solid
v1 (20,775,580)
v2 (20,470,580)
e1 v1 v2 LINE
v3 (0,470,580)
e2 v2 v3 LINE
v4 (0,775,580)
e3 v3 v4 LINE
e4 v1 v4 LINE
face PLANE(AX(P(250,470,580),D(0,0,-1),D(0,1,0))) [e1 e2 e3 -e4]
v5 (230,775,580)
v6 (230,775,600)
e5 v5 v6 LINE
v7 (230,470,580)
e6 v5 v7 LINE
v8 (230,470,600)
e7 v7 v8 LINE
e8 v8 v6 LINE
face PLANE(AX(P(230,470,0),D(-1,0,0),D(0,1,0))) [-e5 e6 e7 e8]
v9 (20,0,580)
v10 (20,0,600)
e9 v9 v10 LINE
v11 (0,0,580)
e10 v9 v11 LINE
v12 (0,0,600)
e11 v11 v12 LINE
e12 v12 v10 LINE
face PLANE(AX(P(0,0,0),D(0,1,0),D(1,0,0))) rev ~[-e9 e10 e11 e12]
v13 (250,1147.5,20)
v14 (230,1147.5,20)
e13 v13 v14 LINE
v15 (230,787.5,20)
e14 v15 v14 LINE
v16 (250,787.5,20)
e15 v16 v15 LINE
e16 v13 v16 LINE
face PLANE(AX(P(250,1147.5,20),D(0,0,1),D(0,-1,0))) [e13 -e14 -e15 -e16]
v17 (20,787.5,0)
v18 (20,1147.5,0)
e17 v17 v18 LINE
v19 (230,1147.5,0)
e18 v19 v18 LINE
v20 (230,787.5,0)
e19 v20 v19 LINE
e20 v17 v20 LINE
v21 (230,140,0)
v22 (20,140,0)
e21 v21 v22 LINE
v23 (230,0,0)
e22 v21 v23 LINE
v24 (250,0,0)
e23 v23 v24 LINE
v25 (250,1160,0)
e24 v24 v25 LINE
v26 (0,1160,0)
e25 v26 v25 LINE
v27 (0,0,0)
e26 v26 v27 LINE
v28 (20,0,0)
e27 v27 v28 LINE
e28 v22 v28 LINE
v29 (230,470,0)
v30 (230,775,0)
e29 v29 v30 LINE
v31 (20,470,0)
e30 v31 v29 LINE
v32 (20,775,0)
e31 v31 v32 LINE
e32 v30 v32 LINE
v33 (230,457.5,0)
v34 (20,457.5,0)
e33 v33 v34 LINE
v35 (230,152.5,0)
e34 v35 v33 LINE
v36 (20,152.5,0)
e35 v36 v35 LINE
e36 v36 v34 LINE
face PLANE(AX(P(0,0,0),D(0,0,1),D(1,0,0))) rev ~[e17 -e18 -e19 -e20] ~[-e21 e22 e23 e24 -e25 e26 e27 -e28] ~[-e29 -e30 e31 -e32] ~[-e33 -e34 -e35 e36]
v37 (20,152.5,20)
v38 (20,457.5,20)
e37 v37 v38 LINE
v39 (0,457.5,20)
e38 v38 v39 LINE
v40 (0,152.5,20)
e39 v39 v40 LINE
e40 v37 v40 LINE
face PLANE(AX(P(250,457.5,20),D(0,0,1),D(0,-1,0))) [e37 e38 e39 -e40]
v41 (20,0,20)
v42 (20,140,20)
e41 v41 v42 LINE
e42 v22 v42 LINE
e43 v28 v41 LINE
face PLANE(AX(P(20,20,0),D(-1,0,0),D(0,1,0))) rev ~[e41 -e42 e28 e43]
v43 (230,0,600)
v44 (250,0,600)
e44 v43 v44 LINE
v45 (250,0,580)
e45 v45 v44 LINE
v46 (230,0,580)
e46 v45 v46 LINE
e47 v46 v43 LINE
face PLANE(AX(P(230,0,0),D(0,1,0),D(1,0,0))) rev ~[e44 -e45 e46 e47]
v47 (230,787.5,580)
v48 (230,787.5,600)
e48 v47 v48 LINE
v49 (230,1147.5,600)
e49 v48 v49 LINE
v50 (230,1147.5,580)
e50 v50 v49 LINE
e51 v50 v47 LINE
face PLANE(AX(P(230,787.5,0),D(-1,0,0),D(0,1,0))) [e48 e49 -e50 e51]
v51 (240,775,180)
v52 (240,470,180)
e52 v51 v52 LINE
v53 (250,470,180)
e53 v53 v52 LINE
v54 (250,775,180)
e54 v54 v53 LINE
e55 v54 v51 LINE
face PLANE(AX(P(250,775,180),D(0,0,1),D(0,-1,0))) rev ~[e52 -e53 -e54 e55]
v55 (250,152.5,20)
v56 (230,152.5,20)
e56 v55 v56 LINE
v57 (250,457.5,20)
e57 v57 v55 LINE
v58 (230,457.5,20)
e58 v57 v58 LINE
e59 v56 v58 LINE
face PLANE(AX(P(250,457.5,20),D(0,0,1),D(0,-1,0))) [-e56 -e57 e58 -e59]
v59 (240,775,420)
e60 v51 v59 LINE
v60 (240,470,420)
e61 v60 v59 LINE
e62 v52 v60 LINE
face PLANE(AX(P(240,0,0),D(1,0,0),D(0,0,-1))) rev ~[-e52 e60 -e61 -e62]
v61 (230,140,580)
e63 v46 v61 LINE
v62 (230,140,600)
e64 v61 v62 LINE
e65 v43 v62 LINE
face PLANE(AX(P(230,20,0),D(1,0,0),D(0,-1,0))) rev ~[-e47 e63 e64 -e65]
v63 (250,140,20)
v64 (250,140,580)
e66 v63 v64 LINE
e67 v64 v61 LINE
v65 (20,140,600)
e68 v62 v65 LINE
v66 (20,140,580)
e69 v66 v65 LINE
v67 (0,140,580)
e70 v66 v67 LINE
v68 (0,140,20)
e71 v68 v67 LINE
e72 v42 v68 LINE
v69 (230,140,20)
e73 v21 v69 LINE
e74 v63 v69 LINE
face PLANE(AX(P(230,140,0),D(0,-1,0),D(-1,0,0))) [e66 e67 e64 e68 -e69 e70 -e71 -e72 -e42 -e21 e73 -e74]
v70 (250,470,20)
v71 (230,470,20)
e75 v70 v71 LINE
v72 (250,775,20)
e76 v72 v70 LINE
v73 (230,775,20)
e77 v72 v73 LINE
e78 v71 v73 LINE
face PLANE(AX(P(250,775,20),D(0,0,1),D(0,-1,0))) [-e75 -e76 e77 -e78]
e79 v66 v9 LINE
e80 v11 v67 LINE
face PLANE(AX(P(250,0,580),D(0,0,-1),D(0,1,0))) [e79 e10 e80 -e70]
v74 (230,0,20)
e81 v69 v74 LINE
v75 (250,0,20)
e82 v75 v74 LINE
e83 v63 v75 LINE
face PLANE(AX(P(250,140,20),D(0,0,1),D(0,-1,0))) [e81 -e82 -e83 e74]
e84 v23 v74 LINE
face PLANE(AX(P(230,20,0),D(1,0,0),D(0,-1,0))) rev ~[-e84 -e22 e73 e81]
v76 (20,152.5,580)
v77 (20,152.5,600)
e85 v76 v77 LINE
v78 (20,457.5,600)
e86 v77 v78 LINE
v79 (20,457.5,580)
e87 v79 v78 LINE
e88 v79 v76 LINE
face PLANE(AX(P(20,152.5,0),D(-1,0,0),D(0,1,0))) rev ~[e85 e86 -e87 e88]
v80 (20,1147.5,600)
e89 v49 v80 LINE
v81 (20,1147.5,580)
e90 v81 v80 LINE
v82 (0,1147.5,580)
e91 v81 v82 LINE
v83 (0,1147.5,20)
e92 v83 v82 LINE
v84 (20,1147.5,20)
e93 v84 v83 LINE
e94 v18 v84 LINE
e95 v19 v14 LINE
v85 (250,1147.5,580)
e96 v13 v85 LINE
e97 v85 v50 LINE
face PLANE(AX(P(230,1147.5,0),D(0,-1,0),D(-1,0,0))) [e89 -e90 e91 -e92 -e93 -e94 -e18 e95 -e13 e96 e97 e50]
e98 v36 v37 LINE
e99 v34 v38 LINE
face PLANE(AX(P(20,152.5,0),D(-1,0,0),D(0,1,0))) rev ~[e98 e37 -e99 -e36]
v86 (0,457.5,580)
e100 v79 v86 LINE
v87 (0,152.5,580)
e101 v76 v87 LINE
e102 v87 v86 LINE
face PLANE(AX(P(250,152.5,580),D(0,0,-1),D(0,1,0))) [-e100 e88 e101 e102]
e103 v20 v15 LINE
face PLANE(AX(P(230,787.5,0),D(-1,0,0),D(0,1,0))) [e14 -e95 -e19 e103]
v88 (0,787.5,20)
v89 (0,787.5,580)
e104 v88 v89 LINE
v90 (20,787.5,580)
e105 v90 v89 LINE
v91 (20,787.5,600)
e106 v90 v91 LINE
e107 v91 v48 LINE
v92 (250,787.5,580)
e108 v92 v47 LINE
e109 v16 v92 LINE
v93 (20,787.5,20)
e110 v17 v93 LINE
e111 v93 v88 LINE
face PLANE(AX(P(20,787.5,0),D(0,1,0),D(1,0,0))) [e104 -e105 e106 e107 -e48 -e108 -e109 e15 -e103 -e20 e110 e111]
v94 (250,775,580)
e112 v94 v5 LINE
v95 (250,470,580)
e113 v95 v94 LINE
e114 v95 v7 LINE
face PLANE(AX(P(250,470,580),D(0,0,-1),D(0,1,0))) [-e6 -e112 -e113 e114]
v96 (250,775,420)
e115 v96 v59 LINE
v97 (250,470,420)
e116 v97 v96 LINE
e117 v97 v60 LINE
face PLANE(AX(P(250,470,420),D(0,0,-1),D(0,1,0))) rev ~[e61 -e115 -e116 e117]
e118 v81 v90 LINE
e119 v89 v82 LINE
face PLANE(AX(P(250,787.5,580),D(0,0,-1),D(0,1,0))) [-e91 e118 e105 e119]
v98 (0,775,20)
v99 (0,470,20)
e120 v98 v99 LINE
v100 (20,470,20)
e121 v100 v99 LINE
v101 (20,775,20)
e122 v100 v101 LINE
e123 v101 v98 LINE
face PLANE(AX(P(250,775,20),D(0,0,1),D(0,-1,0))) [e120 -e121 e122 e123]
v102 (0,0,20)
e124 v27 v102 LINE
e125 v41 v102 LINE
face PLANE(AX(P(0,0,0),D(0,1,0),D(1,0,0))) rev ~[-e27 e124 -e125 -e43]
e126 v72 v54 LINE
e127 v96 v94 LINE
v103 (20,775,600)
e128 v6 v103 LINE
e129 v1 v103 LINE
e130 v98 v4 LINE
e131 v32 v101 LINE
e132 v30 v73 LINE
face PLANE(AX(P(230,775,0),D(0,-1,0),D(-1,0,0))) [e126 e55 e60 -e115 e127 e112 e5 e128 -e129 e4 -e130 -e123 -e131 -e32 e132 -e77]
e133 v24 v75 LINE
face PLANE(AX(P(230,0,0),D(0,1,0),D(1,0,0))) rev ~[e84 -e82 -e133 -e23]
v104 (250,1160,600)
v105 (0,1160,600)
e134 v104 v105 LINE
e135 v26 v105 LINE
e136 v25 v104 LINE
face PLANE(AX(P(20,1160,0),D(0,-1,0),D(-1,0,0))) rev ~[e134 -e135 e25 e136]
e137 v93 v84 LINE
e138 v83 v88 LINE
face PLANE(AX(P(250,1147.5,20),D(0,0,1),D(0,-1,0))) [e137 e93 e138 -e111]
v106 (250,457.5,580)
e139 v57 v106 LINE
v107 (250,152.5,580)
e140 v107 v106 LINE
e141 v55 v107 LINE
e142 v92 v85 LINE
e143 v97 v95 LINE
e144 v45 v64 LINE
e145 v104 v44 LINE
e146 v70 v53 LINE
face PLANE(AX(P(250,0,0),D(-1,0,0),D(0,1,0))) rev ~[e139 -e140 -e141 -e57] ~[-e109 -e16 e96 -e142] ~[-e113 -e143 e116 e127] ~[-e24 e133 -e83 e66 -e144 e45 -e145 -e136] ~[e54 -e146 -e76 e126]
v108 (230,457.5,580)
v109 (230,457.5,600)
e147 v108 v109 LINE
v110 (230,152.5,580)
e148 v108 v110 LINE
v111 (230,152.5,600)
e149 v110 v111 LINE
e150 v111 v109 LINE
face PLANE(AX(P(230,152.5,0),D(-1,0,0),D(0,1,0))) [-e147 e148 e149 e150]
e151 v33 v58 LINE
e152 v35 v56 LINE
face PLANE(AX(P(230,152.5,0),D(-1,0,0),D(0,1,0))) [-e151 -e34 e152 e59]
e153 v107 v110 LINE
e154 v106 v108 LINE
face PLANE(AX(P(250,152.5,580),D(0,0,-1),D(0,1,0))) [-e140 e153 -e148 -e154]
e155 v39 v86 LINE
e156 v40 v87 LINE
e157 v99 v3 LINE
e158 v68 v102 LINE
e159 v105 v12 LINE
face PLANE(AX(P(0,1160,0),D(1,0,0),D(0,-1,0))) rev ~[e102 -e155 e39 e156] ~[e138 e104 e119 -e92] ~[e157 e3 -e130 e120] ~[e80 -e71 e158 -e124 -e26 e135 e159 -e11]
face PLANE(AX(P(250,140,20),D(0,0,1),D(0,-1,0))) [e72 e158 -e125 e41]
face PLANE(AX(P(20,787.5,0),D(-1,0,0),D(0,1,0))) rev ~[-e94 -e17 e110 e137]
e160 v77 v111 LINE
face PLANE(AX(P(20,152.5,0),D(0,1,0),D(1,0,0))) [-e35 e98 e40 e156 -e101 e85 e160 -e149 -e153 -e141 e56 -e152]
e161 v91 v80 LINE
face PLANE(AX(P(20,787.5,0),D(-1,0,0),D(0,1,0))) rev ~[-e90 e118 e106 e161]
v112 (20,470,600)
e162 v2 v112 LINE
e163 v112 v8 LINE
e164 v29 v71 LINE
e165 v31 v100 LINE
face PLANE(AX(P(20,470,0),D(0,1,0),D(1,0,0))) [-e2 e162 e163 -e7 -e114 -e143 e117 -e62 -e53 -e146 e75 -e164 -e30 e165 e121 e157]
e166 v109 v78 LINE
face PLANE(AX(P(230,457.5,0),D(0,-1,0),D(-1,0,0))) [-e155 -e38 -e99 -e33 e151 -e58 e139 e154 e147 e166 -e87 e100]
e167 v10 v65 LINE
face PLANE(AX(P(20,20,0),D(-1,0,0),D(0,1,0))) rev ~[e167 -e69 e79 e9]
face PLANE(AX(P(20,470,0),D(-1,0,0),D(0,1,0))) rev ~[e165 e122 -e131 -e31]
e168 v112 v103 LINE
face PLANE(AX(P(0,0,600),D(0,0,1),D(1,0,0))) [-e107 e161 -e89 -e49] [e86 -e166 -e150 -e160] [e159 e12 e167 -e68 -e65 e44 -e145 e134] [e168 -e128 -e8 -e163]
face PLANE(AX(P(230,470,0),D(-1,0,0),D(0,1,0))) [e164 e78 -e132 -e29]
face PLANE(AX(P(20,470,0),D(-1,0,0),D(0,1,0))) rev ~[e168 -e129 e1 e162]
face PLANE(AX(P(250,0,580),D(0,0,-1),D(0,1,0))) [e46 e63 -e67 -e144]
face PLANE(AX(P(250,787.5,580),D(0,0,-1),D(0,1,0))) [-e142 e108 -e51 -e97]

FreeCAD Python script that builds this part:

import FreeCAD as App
import Part
import Sketcher


def add_polygon(sketch, points):
    """Adds a closed chain of lines whose ends are joined by coincident constraints."""
    first, n = sketch.GeometryCount, len(points)
    for a, b in zip(points, points[1:] + points[:1]):
        sketch.addGeometry(Part.LineSegment(App.Vector(*a, 0), App.Vector(*b, 0)), False)
    for i in range(n):
        sketch.addConstraint(Sketcher.Constraint("Coincident", first + i, 2, first + (i + 1) % n, 1))

doc = App.newDocument("Part")
body = doc.addObject("PartDesign::Body", "Body")

# Sketch on XY plane
sketch1 = body.newObject("Sketcher::SketchObject", "Sketch")
sketch1.AttachmentSupport = (doc.getObject("XY_Plane"), [""])
sketch1.MapMode = "FlatFace"
add_polygon(sketch1, [(230, 0), (250, 0), (250, 1160), (0, 1160), (0, 0), (20, 0), (20, 140), (230, 140)])  # lines 0-7
add_polygon(sketch1, [(20, 1148), (230, 1148), (230, 788), (20, 788)])  # lines 8-11
add_polygon(sketch1, [(20, 470), (20, 775), (230, 775), (230, 470)])  # lines 12-15
add_polygon(sketch1, [(20, 152), (20, 458), (230, 458), (230, 152)])  # lines 16-19
sketch1.addConstraint([
    Sketcher.Constraint("Horizontal", 0),
    Sketcher.Constraint("Vertical", 1),
    Sketcher.Constraint("Horizontal", 2),
    Sketcher.Constraint("Vertical", 3),
    Sketcher.Constraint("Horizontal", 4),
    Sketcher.Constraint("Vertical", 5),
    Sketcher.Constraint("Horizontal", 6),
    Sketcher.Constraint("Vertical", 7),
    Sketcher.Constraint("Horizontal", 8),
    Sketcher.Constraint("Vertical", 9),
    Sketcher.Constraint("Horizontal", 10),
    Sketcher.Constraint("Vertical", 11),
    Sketcher.Constraint("Vertical", 12),
    Sketcher.Constraint("Horizontal", 13),
    Sketcher.Constraint("Vertical", 14),
    Sketcher.Constraint("Horizontal", 15),
    Sketcher.Constraint("Vertical", 16),
    Sketcher.Constraint("Horizontal", 17),
    Sketcher.Constraint("Vertical", 18),
    Sketcher.Constraint("Horizontal", 19),
    Sketcher.Constraint("Coincident", 3, 2, -1, 1),
    Sketcher.Constraint("PointOnObject", 0, 2, -1),
    Sketcher.Constraint("Vertical", 7, 2, 8, 2),
    Sketcher.Constraint("Vertical", 5, 2, 10, 2),
    Sketcher.Constraint("Vertical", 11, 2, 12, 2),
    Sketcher.Constraint("Vertical", 9, 2, 13, 2),
    Sketcher.Constraint("Vertical", 15, 2, 16, 2),
    Sketcher.Constraint("Vertical", 14, 2, 17, 2),
    Sketcher.Constraint("Equal", 0, 4),
    Sketcher.Constraint("Equal", 14, 16),
    Sketcher.Constraint("DistanceX", 0, 1, 0, 2, 20.0),
    Sketcher.Constraint("DistanceX", 2, 2, 2, 1, 250.0),
    Sketcher.Constraint("DistanceY", 1, 1, 1, 2, 1160.0),
    Sketcher.Constraint("DistanceY", 5, 1, 5, 2, 140.0),
    Sketcher.Constraint("DistanceY", 9, 2, 9, 1, 360.0),
    Sketcher.Constraint("DistanceY", 12, 1, 12, 2, 305.0),
    Sketcher.Constraint("DistanceY", 8, 2, 1, 2, 12.5),
    Sketcher.Constraint("DistanceY", 12, 2, 10, 2, 12.5),
    Sketcher.Constraint("DistanceY", 16, 2, 15, 2, 12.5),
])
pad1 = body.newObject("PartDesign::Pad", "Pad")
pad1.Profile = sketch1
pad1.Length = 600

# Sketch on YZ plane
sketch2 = body.newObject("Sketcher::SketchObject", "Sketch001")
sketch2.AttachmentSupport = (doc.getObject("YZ_Plane"), [""])
sketch2.MapMode = "FlatFace"
sketch2.AttachmentOffset = App.Placement(App.Vector(0, 0, 250), App.Rotation())
add_polygon(sketch2, [(152, 20), (458, 20), (458, 580), (152, 580)])  # lines 0-3
add_polygon(sketch2, [(470, 580), (470, 20), (775, 20), (775, 580)])  # lines 4-7
add_polygon(sketch2, [(0, 20), (140, 20), (140, 580), (0, 580)])  # lines 8-11
add_polygon(sketch2, [(788, 580), (788, 20), (1148, 20), (1148, 580)])  # lines 12-15
sketch2.addConstraint([
    Sketcher.Constraint("Horizontal", 0),
    Sketcher.Constraint("Vertical", 1),
    Sketcher.Constraint("Horizontal", 2),
    Sketcher.Constraint("Vertical", 3),
    Sketcher.Constraint("Vertical", 4),
    Sketcher.Constraint("Horizontal", 5),
    Sketcher.Constraint("Vertical", 6),
    Sketcher.Constraint("Horizontal", 7),
    Sketcher.Constraint("Horizontal", 8),
    Sketcher.Constraint("Vertical", 9),
    Sketcher.Constraint("Horizontal", 10),
    Sketcher.Constraint("Vertical", 11),
    Sketcher.Constraint("Vertical", 12),
    Sketcher.Constraint("Horizontal", 13),
    Sketcher.Constraint("Vertical", 14),
    Sketcher.Constraint("Horizontal", 15),
    Sketcher.Constraint("PointOnObject", 10, 2, -2),
    Sketcher.Constraint("Horizontal", 3, 2, 4, 2),
    Sketcher.Constraint("Horizontal", 2, 2, 6, 2),
    Sketcher.Constraint("Horizontal", 5, 2, 8, 2),
    Sketcher.Constraint("Horizontal", 7, 2, 9, 2),
    Sketcher.Constraint("Horizontal", 11, 2, 12, 2),
    Sketcher.Constraint("Horizontal", 10, 2, 14, 2),
    Sketcher.Constraint("Equal", 2, 5),
    Sketcher.Constraint("DistanceY", -1, 1, 0, 2, 20.0),
    Sketcher.Constraint("DistanceX", 0, 1, 0, 2, 305.0),
    Sketcher.Constraint("DistanceX", 8, 1, 8, 2, 140.0),
    Sketcher.Constraint("DistanceX", 13, 1, 13, 2, 360.0),
    Sketcher.Constraint("DistanceY", 1, 1, 1, 2, 560.0),
    Sketcher.Constraint("DistanceX", -1, 1, 4, 2, 470.0),
    Sketcher.Constraint("DistanceX", 0, 2, 12, 2, 330.0),
    Sketcher.Constraint("DistanceX", -1, 1, 0, 2, 457.5),
])
pocket1 = body.newObject("PartDesign::Pocket", "Pocket")
pocket1.Profile = sketch2
pocket1.Length = 600

# Sketch on YZ plane
sketch3 = body.newObject("Sketcher::SketchObject", "Sketch002")
sketch3.AttachmentSupport = (doc.getObject("YZ_Plane"), [""])
sketch3.MapMode = "FlatFace"
sketch3.AttachmentOffset = App.Placement(App.Vector(0, 0, 250), App.Rotation())
add_polygon(sketch3, [(775, 420), (470, 420), (470, 180), (775, 180)])  # lines 0-3
sketch3.addConstraint([
    Sketcher.Constraint("Horizontal", 0),
    Sketcher.Constraint("Vertical", 1),
    Sketcher.Constraint("Horizontal", 2),
    Sketcher.Constraint("Vertical", 3),
    Sketcher.Constraint("DistanceY", 1, 2, 1, 1, 240.0),
    Sketcher.Constraint("DistanceX", 0, 2, 0, 1, 305.0),
    Sketcher.Constraint("DistanceX", -1, 1, 0, 2, 470.0),
    Sketcher.Constraint("DistanceY", -1, 1, 0, 2, 420.0),
])
pad2 = body.newObject("PartDesign::Pad", "Pad001")
pad2.Profile = sketch3
pad2.Length = 10
pad2.Reversed = True

doc.recompute()
